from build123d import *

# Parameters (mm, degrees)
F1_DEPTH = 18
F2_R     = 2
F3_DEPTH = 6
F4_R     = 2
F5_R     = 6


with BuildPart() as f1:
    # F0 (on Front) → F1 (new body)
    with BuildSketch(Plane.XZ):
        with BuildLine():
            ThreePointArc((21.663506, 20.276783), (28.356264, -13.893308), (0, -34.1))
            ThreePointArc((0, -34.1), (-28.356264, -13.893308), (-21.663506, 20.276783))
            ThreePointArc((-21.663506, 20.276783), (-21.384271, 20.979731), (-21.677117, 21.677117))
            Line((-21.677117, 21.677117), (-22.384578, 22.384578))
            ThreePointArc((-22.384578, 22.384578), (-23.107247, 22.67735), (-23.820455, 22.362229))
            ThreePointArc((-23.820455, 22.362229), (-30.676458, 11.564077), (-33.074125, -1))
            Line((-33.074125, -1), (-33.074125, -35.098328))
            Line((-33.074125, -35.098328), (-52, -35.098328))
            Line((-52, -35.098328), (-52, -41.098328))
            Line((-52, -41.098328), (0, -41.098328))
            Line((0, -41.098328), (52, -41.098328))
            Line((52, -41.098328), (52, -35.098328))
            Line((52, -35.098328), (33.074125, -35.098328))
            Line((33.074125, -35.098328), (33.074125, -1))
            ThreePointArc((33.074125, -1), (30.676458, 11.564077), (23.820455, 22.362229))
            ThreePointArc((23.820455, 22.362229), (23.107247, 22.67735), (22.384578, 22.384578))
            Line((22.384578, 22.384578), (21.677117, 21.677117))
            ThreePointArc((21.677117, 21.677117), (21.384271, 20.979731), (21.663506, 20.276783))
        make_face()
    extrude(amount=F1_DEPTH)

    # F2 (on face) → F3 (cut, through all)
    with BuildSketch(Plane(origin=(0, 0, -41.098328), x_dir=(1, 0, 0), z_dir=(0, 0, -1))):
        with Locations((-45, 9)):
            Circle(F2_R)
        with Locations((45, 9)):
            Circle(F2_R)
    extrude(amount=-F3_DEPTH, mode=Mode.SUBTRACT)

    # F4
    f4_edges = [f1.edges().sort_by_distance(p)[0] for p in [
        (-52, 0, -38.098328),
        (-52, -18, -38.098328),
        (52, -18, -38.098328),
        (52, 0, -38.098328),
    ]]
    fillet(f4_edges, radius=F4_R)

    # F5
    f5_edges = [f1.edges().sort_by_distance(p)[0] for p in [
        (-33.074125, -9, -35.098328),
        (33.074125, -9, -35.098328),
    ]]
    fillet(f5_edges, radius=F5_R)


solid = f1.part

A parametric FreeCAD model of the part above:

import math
import FreeCAD as App
import Part
import Sketcher

V = App.Vector


def edges_at(feature, points):
    """Names of the edges that pass closest to the given points."""
    edges = feature.Shape.Edges
    near = lambda p: min(range(len(edges)), key=lambda i: edges[i].distToShape(Part.Vertex(*p))[0])
    return sorted({f"Edge{near(p) + 1}" for p in points})

doc = App.newDocument("Part")
body = doc.addObject("PartDesign::Body", "Body")

# Sketch on XZ plane
sketch1 = body.newObject("Sketcher::SketchObject", "Sketch")
sketch1.AttachmentSupport = (doc.getObject("XZ_Plane"), [""])
sketch1.MapMode = "FlatFace"
sketch1.addGeometry([
    Part.ArcOfCircle(Part.Circle(V(-1.496698, -2, 0), V(0, 0, 1), 32.134874), math.radians(-87.330455), math.radians(43.886152)),  # 0
    Part.ArcOfCircle(Part.Circle(V(1.496698, -2, 0), V(0, 0, 1), 32.134874), math.radians(136.113848), math.radians(267.330455)),  # 1
    Part.ArcOfCircle(Part.Circle(V(-22.384222, 20.970011, 0), V(0, 0, 1), 0.999998), math.radians(-43.886268), math.radians(45.000043)),  # 2
    Part.LineSegment(V(-21.677117, 21.677117, 0), V(-22.384578, 22.384578, 0)),  # 3
    Part.ArcOfCircle(Part.Circle(V(-23.091685, 21.677471, 0), V(0, 0, 1), 1), math.radians(45.000001), math.radians(136.783438)),  # 4
    Part.ArcOfCircle(Part.Circle(V(1.043367, -0.999997, 0), V(0, 0, 1), 34.117492), math.radians(136.78342), math.radians(180.000005)),  # 5
    Part.LineSegment(V(-33.074125, -1, 0), V(-33.074125, -35.098328, 0)),  # 6
    Part.LineSegment(V(-33.074125, -35.098328, 0), V(-52, -35.098328, 0)),  # 7
    Part.LineSegment(V(-52, -35.098328, 0), V(-52, -41.098328, 0)),  # 8
    Part.LineSegment(V(-52, -41.098328, 0), V(52, -41.098328, 0)),  # 9
    Part.LineSegment(V(52, -41.098328, 0), V(52, -35.098328, 0)),  # 10
    Part.LineSegment(V(52, -35.098328, 0), V(33.074125, -35.098328, 0)),  # 11
    Part.LineSegment(V(33.074125, -35.098328, 0), V(33.074125, -1, 0)),  # 12
    Part.ArcOfCircle(Part.Circle(V(-1.043367, -0.999997, 0), V(0, 0, 1), 34.117492), math.radians(-0.000005), math.radians(43.21658)),  # 13
    Part.ArcOfCircle(Part.Circle(V(23.091685, 21.677471, 0), V(0, 0, 1), 1), math.radians(43.216562), math.radians(134.999999)),  # 14
    Part.LineSegment(V(22.384578, 22.384578, 0), V(21.677117, 21.677117, 0)),  # 15
    Part.ArcOfCircle(Part.Circle(V(22.384222, 20.970011, 0), V(0, 0, 1), 0.999998), math.radians(134.999957), math.radians(223.886268)),  # 16
], False)
sketch1.addConstraint([
    Sketcher.Constraint("Coincident", 0, 1, 1, 2),
    Sketcher.Constraint("Coincident", 1, 1, 2, 1),
    Sketcher.Constraint("Coincident", 2, 2, 3, 1),
    Sketcher.Constraint("Coincident", 3, 2, 4, 1),
    Sketcher.Constraint("Coincident", 4, 2, 5, 1),
    Sketcher.Constraint("Coincident", 5, 2, 6, 1),
    Sketcher.Constraint("Coincident", 6, 2, 7, 1),
    Sketcher.Constraint("Coincident", 7, 2, 8, 1),
    Sketcher.Constraint("Coincident", 8, 2, 9, 1),
    Sketcher.Constraint("Coincident", 9, 2, 10, 1),
    Sketcher.Constraint("Coincident", 10, 2, 11, 1),
    Sketcher.Constraint("Coincident", 11, 2, 12, 1),
    Sketcher.Constraint("Coincident", 12, 2, 13, 1),
    Sketcher.Constraint("Coincident", 13, 2, 14, 1),
    Sketcher.Constraint("Coincident", 14, 2, 15, 1),
    Sketcher.Constraint("Coincident", 15, 2, 16, 1),
    Sketcher.Constraint("Coincident", 16, 2, 0, 2),
    Sketcher.Constraint("Vertical", 6),
    Sketcher.Constraint("Horizontal", 7),
    Sketcher.Constraint("Vertical", 8),
    Sketcher.Constraint("Horizontal", 9),
    Sketcher.Constraint("Vertical", 10),
    Sketcher.Constraint("Horizontal", 11),
    Sketcher.Constraint("Vertical", 12),
    Sketcher.Constraint("PointOnObject", 0, 1, -2),
    Sketcher.Constraint("Radius", 2, 0.999998),
    Sketcher.Constraint("Radius", 4, 1.0),
    Sketcher.Constraint("Radius", 14, 1.0),
    Sketcher.Constraint("Radius", 16, 0.999998),
    Sketcher.Constraint("DistanceX", 9, 1, 9, 2, 104.0),
    Sketcher.Constraint("DistanceY", 8, 2, 8, 1, 6.0),
    Sketcher.Constraint("DistanceY", 10, 1, 10, 2, 6.0),
    Sketcher.Constraint("DistanceY", 0, 3, -1, 1, 2.0),
    Sketcher.Constraint("DistanceY", 1, 3, -1, 1, 2.0),
    Sketcher.Constraint("DistanceY", 5, 2, -1, 1, 1.0),
    Sketcher.Constraint("DistanceX", 7, 2, -1, 1, 52.0),
    Sketcher.Constraint("DistanceY", 12, 2, -1, 1, 1.0),
    Sketcher.Constraint("DistanceY", 0, 1, -1, 1, 34.1),
    Sketcher.Constraint("Radius", 0, 32.134874),
    Sketcher.Constraint("Radius", 1, 32.134874),
    Sketcher.Constraint("Radius", 5, 34.117492),
    Sketcher.Constraint("Radius", 13, 34.117492),
    Sketcher.Constraint("Distance", 3, 1.000501),
    Sketcher.Constraint("Distance", 15, 1.000501),
    Sketcher.Constraint("DistanceY", 6, 2, 6, 1, 34.098328),
    Sketcher.Constraint("DistanceX", 7, 2, 7, 1, 18.925875),
    Sketcher.Constraint("DistanceX", 11, 2, 11, 1, 18.925875),
    Sketcher.Constraint("DistanceY", -1, 1, 2, 3, 20.970011),
    Sketcher.Constraint("DistanceY", -1, 1, 4, 3, 21.677471),
    Sketcher.Constraint("DistanceY", -1, 1, 14, 3, 21.677471),
    Sketcher.Constraint("DistanceY", -1, 1, 16, 3, 20.970011),
    Sketcher.Constraint("DistanceX", 3, 2, -1, 1, 22.384578),
    Sketcher.Constraint("DistanceY", -1, 1, 3, 2, 22.384578),
    Sketcher.Constraint("DistanceY", -1, 1, 4, 2, 22.362229),
    Sketcher.Constraint("DistanceY", -1, 1, 13, 2, 22.362229),
    Sketcher.Constraint("DistanceY", -1, 1, 14, 2, 22.384578),
    Sketcher.Constraint("DistanceY", 13, 3, 2, 3, 21.970008),
    Sketcher.Constraint("DistanceX", 4, 3, 1, 1, 1.428179),
    Sketcher.Constraint("DistanceX", 16, 2, 15, 2, 0.013611),
])
pad1 = body.newObject("PartDesign::Pad", "Pad")
pad1.Profile = sketch1
pad1.Length = 18

# Sketch on XY plane
sketch2 = body.newObject("Sketcher::SketchObject", "Sketch001")
sketch2.AttachmentSupport = (doc.getObject("XY_Plane"), [""])
sketch2.MapMode = "FlatFace"
sketch2.AttachmentOffset = App.Placement(V(0, 0, -41.098328), App.Rotation())
sketch2.addGeometry([
    Part.Circle(V(-45, -9, 0), V(0, 0, 1), 2),
    Part.Circle(V(45, -9, 0), V(0, 0, 1), 2),
], False)
sketch2.addConstraint([
    Sketcher.Constraint("Equal", 0, 1),
    Sketcher.Constraint("Symmetric", 0, 3, 1, 3, -2),
    Sketcher.Constraint("Diameter", 0, 4.0),
    Sketcher.Constraint("DistanceX", 0, 3, -1, 1, 45.0),
    Sketcher.Constraint("DistanceY", 0, 3, -1, 1, 9.0),
])
pocket1 = body.newObject("PartDesign::Pocket", "Pocket")
pocket1.Profile = sketch2
pocket1.Type = "ThroughAll"
pocket1.Reversed = True
doc.recompute()

fillet = body.newObject("PartDesign::Fillet", "Fillet")
fillet.Base = (pocket1, edges_at(pocket1, [
    (-52, 0, -38.098),
    (-52, -18, -38.098),
    (52, -18, -38.098),
    (52, 0, -38.098),
]))
fillet.Radius = 2
doc.recompute()

fillet2 = body.newObject("PartDesign::Fillet", "Fillet001")
fillet2.Base = (fillet, edges_at(fillet, [(-33.074, -9, -35.098), (33.074, -9, -35.098)]))
fillet2.Radius = 6

doc.recompute()
